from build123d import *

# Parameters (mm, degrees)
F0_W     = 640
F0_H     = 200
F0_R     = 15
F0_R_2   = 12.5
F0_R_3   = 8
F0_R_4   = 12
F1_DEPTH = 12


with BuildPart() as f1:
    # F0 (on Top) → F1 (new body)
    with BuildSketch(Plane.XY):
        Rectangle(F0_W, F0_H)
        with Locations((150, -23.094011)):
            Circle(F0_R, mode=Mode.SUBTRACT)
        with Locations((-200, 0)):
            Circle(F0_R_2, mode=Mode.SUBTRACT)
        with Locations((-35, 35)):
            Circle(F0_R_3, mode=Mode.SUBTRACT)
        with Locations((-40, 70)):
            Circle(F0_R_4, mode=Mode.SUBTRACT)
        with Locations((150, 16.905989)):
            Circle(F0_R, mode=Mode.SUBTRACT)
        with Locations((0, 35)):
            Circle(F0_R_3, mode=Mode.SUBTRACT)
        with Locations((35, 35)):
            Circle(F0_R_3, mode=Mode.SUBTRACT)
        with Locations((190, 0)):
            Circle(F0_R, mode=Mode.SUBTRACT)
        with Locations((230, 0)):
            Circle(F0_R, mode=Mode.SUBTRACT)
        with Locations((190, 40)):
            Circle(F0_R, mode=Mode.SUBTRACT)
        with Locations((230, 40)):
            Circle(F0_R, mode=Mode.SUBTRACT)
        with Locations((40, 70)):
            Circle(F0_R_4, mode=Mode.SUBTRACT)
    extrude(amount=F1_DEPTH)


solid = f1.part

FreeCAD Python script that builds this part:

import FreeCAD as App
import Part
import Sketcher

V = App.Vector
Q = App.Units.Quantity

doc = App.newDocument("Part")
body = doc.addObject("PartDesign::Body", "Body")

# Sketch on XY plane
sketch1 = doc.addObject("Sketcher::SketchObject", "Sketch")
body.addObject(sketch1)
sketch1.AttachmentSupport = (doc.XY_Plane, [""])
sketch1.MapMode = "FlatFace"
sketch1.addGeometry([
    Part.LineSegment(V(-320, 100, 0), V(-320, -100, 0)),  # 0
    Part.LineSegment(V(-320, -100, 0), V(320, -100, 0)),  # 1
    Part.LineSegment(V(320, -100, 0), V(320, 100, 0)),  # 2
    Part.LineSegment(V(320, 100, 0), V(-320, 100, 0)),  # 3
    Part.Circle(V(-200, 0, 0), V(0, 0, 1), 12),  # 4
    Part.Circle(V(150, -23, 0), V(0, 0, 1), 15),  # 5
    Part.Circle(V(190, 0, 0), V(0, 0, 1), 15),  # 6
    Part.Circle(V(230, 0, 0), V(0, 0, 1), 15),  # 7
    Part.Circle(V(150, 17, 0), V(0, 0, 1), 15),  # 8
    Part.Circle(V(-35, 35, 0), V(0, 0, 1), 8),  # 9
    Part.Circle(V(0, 35, 0), V(0, 0, 1), 8),  # 10
    Part.Circle(V(-40, 70, 0), V(0, 0, 1), 12),  # 11
    Part.Circle(V(35, 35, 0), V(0, 0, 1), 8),  # 12
    Part.Circle(V(190, 40, 0), V(0, 0, 1), 15),  # 13
    Part.Circle(V(230, 40, 0), V(0, 0, 1), 15),  # 14
    Part.Circle(V(40, 70, 0), V(0, 0, 1), 12),  # 15
], False)
sketch1.addConstraint([
    Sketcher.Constraint("Coincident", 0, 2, 1, 1),
    Sketcher.Constraint("Coincident", 1, 2, 2, 1),
    Sketcher.Constraint("Coincident", 2, 2, 3, 1),
    Sketcher.Constraint("Coincident", 3, 2, 0, 1),
    Sketcher.Constraint("Vertical", 0),
    Sketcher.Constraint("Horizontal", 1),
    Sketcher.Constraint("Vertical", 2),
    Sketcher.Constraint("Horizontal", 3),
    Sketcher.Constraint("Equal", 5, 6),
    Sketcher.Constraint("Equal", 6, 7),
    Sketcher.Constraint("Equal", 7, 8),
    Sketcher.Constraint("Equal", 9, 10),
    Sketcher.Constraint("Equal", 10, 12),
    Sketcher.Constraint("Equal", 8, 13),
    Sketcher.Constraint("Equal", 13, 14),
    Sketcher.Constraint("Equal", 11, 15),
    Sketcher.Constraint("Symmetric", 0, 2, 2, 2, -1, 1),
    Sketcher.Constraint("Symmetric", 9, 3, 12, 3, -2),
    Sketcher.Constraint("Symmetric", 11, 3, 15, 3, -2),
    Sketcher.Constraint("PointOnObject", 4, 3, -1),
    Sketcher.Constraint("PointOnObject", 6, 3, -1),
    Sketcher.Constraint("PointOnObject", 7, 3, -1),
    Sketcher.Constraint("PointOnObject", 10, 3, -2),
    Sketcher.Constraint("Horizontal", 9, 3, 10, 3),
    Sketcher.Constraint("Horizontal", 13, 3, 14, 3),
    Sketcher.Constraint("Vertical", 5, 3, 8, 3),
    Sketcher.Constraint("Vertical", 6, 3, 13, 3),
    Sketcher.Constraint("Vertical", 7, 3, 14, 3),
    Sketcher.Constraint("Diameter", 4, Q("25 mm")),
    Sketcher.Constraint("Diameter", 5, Q("30 mm")),
    Sketcher.Constraint("Diameter", 9, Q("16 mm")),
    Sketcher.Constraint("Diameter", 11, Q("24 mm")),
    Sketcher.Constraint("DistanceX", 1, 1, 1, 2, Q("640 mm")),
    Sketcher.Constraint("DistanceY", 0, 2, 0, 1, Q("200 mm")),
    Sketcher.Constraint("DistanceX", 4, 3, -1, 1, Q("200 mm")),
    Sketcher.Constraint("DistanceX", -1, 1, 5, 3, Q("150 mm")),
    Sketcher.Constraint("DistanceX", -1, 1, 6, 3, Q("190 mm")),
    Sketcher.Constraint("DistanceX", -1, 1, 7, 3, Q("230 mm")),
    Sketcher.Constraint("DistanceX", 9, 3, -1, 1, Q("35 mm")),
    Sketcher.Constraint("DistanceY", -1, 1, 9, 3, Q("35 mm")),
    Sketcher.Constraint("DistanceX", 11, 3, -1, 1, Q("40 mm")),
    Sketcher.Constraint("DistanceY", -1, 1, 11, 3, Q("70 mm")),
    Sketcher.Constraint("DistanceY", -1, 1, 13, 3, Q("40 mm")),
    Sketcher.Constraint("DistanceY", 5, 3, 8, 3, Q("40 mm")),
    Sketcher.Constraint("DistanceY", 5, 3, -1, 1, Q("23.094011 mm")),
])
pad1 = doc.addObject("PartDesign::Pad", "Pad")
body.addObject(pad1)
pad1.Profile = sketch1
pad1.Length = 12

doc.recompute()
